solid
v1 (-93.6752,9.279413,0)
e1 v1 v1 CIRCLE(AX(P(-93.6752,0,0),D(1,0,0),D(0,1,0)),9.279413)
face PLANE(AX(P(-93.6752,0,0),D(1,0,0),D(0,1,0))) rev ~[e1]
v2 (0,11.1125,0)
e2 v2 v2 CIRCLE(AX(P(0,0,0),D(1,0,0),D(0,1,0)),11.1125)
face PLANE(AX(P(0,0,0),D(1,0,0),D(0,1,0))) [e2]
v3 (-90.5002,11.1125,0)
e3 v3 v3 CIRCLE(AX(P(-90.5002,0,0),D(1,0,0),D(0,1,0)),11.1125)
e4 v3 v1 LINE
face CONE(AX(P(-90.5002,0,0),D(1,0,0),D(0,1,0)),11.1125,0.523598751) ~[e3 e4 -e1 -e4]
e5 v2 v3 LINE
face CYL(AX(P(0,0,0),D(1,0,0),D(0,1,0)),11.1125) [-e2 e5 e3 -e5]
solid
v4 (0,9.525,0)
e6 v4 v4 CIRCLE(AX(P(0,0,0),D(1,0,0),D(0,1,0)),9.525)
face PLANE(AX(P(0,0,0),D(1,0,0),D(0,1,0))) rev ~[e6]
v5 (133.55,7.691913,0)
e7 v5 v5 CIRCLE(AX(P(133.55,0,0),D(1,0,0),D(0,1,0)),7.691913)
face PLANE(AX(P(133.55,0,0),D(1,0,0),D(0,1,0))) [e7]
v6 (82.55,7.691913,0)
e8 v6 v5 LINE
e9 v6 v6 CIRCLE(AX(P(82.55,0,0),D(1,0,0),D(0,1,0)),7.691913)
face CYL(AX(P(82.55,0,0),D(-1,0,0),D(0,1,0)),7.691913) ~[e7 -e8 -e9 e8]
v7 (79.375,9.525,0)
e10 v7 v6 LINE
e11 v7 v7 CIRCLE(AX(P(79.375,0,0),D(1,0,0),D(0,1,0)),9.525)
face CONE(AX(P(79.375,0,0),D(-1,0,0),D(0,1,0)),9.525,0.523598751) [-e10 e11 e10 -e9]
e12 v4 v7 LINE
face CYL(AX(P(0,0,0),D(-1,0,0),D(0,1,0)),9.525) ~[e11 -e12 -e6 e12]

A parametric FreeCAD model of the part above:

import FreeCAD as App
import Part
import Sketcher

V = App.Vector
Q = App.Units.Quantity


def edges_at(feature, points):
    """Names of the edges that pass closest to the given points."""
    edges = feature.Shape.Edges
    near = lambda p: min(range(len(edges)), key=lambda i: edges[i].distToShape(Part.Vertex(*p))[0])
    return sorted({f"Edge{near(p) + 1}" for p in points})

doc = App.newDocument("Part")
body = doc.addObject("PartDesign::Body", "Body")

# Sketch on YZ plane
sketch1 = body.newObject("Sketcher::SketchObject", "Sketch")
sketch1.AttachmentSupport = (doc.getObject("YZ_Plane"), [""])
sketch1.MapMode = "FlatFace"
sketch1.addGeometry(Part.Circle(V(0, 0, 0), V(0, 0, 1), 11), False)
sketch1.addConstraint([
    Sketcher.Constraint("Coincident", 0, 3, -1, 1),
    Sketcher.Constraint("Diameter", 0, Q("0.875 in")),
])
pad1 = body.newObject("PartDesign::Pad", "Pad")
pad1.Profile = sketch1
pad1.Length = Q("3.688 in")
pad1.Reversed = True
doc.recompute()

chamfer = body.newObject("PartDesign::Chamfer", "Chamfer")
chamfer.Base = (pad1, edges_at(pad1, [(-93.675, -11.113, 0)]))
chamfer.ChamferType = "Two distances"
chamfer.Size = Q("0.125 in")
chamfer.Size2 = 1.833087
body2 = doc.addObject("PartDesign::Body", "Body001")

# Sketch on YZ plane
sketch2 = body2.newObject("Sketcher::SketchObject", "Sketch001")
sketch2.AttachmentSupport = (doc.getObject("YZ_Plane001"), [""])
sketch2.MapMode = "FlatFace"
sketch2.addGeometry(Part.Circle(V(0, 0, 0), V(0, 0, 1), 10), False)
sketch2.addConstraint([
    Sketcher.Constraint("Coincident", 0, 3, -1, 1),
    Sketcher.Constraint("Diameter", 0, Q("0.75 in")),
])
pad2 = body2.newObject("PartDesign::Pad", "Pad001")
pad2.Profile = sketch2
pad2.Length = Q("3.25 in")
doc.recompute()

chamfer2 = body2.newObject("PartDesign::Chamfer", "Chamfer001")
chamfer2.Base = (pad2, edges_at(pad2, [(82.55, -9.525, 0)]))
chamfer2.ChamferType = "Two distances"
chamfer2.Size = Q("0.125 in")
chamfer2.Size2 = 1.833087

# Sketch on YZ plane
sketch3 = body2.newObject("Sketcher::SketchObject", "Sketch002")
sketch3.AttachmentSupport = (doc.getObject("YZ_Plane001"), [""])
sketch3.MapMode = "FlatFace"
sketch3.AttachmentOffset = App.Placement(V(0, 0, 3.25 * 25.4), App.Rotation())
sketch3.addGeometry(Part.Circle(V(0, 0, 0), V(0, 0, 1), 8), False)
sketch3.addConstraint([
    Sketcher.Constraint("Coincident", 0, 3, -1, 1),
    Sketcher.Constraint("Diameter", 0, Q("15.383826 mm")),
])
pad3 = body2.newObject("PartDesign::Pad", "Pad002")
pad3.Profile = sketch3
pad3.Length = 51

doc.recompute()
